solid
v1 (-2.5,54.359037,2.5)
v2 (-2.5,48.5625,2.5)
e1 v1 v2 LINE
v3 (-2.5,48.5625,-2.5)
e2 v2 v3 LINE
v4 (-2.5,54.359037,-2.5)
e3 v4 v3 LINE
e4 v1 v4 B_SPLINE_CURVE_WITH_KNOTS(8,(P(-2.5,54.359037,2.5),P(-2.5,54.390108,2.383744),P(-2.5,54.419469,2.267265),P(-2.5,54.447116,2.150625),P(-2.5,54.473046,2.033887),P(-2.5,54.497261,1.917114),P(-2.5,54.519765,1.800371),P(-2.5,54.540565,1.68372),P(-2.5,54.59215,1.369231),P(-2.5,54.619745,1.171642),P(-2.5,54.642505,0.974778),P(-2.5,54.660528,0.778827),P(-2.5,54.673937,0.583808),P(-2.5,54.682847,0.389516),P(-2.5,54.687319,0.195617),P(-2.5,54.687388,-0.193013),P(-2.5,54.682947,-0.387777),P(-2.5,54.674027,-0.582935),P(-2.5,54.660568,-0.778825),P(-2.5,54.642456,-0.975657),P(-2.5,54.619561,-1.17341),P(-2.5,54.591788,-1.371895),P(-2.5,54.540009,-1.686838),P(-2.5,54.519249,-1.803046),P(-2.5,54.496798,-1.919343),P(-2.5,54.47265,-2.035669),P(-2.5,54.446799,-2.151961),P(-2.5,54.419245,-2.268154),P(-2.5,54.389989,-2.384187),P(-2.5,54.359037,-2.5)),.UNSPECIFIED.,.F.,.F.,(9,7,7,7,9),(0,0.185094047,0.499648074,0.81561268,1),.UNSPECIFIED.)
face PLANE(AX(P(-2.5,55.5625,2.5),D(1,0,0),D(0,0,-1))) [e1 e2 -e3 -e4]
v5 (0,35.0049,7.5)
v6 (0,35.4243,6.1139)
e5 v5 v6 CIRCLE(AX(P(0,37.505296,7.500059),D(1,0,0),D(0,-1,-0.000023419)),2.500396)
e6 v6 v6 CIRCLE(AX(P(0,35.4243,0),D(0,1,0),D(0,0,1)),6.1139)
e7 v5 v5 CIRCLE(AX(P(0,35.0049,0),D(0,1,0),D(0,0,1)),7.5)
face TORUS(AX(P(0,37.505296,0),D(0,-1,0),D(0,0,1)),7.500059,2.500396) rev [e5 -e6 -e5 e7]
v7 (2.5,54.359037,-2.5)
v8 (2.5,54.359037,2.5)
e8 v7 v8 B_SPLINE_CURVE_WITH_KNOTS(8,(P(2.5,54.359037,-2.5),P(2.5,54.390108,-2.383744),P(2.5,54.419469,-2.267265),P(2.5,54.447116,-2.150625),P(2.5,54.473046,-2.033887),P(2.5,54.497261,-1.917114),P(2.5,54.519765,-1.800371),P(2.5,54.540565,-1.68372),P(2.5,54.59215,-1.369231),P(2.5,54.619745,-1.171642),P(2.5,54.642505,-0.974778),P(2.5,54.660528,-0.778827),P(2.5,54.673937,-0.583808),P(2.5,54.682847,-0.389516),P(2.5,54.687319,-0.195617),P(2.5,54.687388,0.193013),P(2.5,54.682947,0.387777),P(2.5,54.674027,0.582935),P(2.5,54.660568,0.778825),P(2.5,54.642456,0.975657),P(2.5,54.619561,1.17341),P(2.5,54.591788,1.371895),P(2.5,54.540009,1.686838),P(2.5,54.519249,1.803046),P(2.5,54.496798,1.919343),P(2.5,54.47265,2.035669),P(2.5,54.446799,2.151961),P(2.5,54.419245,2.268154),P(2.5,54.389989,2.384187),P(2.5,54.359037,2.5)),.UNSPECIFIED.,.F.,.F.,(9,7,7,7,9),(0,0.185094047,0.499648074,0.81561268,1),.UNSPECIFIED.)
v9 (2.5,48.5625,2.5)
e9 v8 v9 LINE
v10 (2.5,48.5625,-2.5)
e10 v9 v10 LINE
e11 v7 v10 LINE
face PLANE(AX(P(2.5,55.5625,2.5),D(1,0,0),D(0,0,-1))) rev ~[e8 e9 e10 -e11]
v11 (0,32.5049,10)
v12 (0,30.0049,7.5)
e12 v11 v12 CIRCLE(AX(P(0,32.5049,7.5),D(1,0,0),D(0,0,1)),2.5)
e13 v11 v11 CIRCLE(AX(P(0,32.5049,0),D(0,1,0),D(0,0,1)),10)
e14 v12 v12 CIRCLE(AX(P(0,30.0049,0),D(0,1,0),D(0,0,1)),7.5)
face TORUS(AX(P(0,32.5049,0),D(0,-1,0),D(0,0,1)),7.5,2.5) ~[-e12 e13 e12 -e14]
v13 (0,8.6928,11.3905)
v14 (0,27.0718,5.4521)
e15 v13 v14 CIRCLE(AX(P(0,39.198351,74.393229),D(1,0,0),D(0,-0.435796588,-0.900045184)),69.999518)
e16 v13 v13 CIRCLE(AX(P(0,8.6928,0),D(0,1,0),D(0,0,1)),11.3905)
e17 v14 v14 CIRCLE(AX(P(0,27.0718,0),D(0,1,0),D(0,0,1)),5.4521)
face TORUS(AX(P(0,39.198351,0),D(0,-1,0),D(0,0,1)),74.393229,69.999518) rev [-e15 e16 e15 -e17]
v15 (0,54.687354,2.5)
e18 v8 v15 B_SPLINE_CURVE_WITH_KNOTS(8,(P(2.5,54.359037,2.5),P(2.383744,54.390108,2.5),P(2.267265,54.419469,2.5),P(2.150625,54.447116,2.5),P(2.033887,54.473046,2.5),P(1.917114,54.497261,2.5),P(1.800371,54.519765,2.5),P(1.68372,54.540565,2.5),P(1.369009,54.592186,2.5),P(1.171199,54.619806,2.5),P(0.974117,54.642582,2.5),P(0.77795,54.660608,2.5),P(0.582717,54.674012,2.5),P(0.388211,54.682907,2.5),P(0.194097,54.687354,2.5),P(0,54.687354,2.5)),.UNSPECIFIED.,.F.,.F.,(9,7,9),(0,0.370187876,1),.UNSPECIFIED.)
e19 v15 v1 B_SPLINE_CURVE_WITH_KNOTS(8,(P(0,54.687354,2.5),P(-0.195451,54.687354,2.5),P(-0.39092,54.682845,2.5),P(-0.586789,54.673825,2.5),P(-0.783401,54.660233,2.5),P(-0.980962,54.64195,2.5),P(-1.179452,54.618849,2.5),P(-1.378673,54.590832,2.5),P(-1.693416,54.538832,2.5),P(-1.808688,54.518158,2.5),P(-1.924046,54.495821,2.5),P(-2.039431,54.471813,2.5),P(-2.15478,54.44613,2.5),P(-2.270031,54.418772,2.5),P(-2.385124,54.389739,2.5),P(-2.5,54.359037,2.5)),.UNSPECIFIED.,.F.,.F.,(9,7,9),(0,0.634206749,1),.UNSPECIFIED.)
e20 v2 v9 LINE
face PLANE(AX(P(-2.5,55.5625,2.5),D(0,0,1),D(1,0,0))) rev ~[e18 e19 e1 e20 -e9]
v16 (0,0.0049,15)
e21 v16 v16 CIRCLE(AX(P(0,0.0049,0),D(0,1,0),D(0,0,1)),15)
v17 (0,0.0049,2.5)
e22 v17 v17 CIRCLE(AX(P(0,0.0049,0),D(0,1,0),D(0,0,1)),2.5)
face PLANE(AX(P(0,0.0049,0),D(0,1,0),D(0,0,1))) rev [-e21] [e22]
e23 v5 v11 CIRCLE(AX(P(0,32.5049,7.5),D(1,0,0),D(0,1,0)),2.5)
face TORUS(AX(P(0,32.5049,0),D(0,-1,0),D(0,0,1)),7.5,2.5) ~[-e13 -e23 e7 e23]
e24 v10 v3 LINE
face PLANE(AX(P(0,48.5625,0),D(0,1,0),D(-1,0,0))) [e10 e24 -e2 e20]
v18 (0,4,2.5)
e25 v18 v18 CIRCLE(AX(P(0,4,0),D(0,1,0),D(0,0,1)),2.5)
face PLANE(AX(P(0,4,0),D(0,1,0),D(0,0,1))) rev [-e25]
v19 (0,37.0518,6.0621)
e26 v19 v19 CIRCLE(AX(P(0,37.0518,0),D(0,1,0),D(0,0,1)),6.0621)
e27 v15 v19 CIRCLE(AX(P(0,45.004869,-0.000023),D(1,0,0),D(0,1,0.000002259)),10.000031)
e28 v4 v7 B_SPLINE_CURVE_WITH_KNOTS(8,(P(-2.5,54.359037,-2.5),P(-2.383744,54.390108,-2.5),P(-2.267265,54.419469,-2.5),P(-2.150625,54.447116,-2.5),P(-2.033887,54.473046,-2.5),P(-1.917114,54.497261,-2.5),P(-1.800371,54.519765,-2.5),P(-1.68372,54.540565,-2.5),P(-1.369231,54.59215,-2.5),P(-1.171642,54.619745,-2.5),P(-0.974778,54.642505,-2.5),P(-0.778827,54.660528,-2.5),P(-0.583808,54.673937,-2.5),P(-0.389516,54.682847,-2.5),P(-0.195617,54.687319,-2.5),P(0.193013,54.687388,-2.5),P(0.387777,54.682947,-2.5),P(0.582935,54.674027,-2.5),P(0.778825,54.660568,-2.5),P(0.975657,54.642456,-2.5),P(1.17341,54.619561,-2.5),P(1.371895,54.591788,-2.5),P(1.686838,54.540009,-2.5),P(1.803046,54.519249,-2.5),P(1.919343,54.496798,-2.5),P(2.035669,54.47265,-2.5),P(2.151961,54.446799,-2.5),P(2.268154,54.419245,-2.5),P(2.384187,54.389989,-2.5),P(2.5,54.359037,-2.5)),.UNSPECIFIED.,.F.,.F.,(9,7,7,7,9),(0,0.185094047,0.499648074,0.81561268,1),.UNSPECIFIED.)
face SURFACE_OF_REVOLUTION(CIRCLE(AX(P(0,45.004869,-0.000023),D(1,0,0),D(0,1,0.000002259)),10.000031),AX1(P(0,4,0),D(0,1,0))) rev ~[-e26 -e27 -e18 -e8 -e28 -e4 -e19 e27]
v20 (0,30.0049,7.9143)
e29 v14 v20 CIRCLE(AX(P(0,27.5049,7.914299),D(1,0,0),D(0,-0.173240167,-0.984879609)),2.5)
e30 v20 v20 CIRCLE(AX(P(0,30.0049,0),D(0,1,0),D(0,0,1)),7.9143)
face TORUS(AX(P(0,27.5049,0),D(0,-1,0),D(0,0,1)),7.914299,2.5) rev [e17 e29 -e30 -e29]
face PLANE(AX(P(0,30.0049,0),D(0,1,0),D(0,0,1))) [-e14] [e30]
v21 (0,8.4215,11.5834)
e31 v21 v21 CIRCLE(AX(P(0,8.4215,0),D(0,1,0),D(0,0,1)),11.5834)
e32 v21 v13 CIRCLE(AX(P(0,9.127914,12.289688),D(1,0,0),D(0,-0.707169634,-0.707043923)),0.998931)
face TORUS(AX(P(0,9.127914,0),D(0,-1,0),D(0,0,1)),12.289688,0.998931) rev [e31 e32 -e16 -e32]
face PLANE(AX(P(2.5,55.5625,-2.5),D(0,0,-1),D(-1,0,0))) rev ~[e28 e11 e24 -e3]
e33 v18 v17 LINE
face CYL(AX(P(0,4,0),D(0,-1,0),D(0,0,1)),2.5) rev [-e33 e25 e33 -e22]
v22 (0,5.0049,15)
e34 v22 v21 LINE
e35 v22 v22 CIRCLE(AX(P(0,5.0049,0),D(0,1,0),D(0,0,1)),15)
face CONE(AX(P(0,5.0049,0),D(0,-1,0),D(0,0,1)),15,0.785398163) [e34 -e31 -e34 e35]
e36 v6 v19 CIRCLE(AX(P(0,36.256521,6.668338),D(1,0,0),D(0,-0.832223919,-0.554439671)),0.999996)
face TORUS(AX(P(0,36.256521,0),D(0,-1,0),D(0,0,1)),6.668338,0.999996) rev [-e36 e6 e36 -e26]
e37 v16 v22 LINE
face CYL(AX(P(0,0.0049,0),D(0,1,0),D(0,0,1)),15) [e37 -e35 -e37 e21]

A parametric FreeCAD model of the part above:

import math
import FreeCAD as App
import Part
import Sketcher
Q = App.Units.Quantity

doc = App.newDocument("Part")
body = doc.addObject("PartDesign::Body", "Body")

# Sketch on YZ plane
sketch1 = body.newObject("Sketcher::SketchObject", "Sketch")
sketch1.AttachmentSupport = (doc.getObject("YZ_Plane"), [""])
sketch1.MapMode = "FlatFace"
sketch1.addGeometry([
    Part.LineSegment(App.Vector(4, 2.5, 0), App.Vector(4, 0, 0)),  # 0
    Part.LineSegment(App.Vector(4, 0, 0), App.Vector(55, 0, 0)),  # 1
    Part.ArcOfCircle(Part.Circle(App.Vector(45, 0, 0), App.Vector(0, 0, 1), 10), math.radians(0), math.radians(143)),  # 2
    Part.ArcOfCircle(Part.Circle(App.Vector(36.26, 6.67, 0), App.Vector(0, 0, 1), 1), math.radians(-146), math.radians(-37)),  # 3
    Part.ArcOfCircle(Part.Circle(App.Vector(37.5, 7.5, 0), App.Vector(0, 0, 1), 2.5), math.radians(180), math.radians(214)),  # 4
    Part.ArcOfCircle(Part.Circle(App.Vector(32.5, 7.5, 0), App.Vector(0, 0, 1), 2.5), math.radians(0), math.radians(180)),  # 5
    Part.LineSegment(App.Vector(30, 7.5, 0), App.Vector(30, 7.91, 0)),  # 6
    Part.ArcOfCircle(Part.Circle(App.Vector(27.5, 7.91, 0), App.Vector(0, 0, 1), 2.5), math.radians(-100), math.radians(0)),  # 7
    Part.ArcOfCircle(Part.Circle(App.Vector(39.2, 74.39, 0), App.Vector(0, 0, 1), 70), math.radians(-115.84), math.radians(-99.98)),  # 8
    Part.ArcOfCircle(Part.Circle(App.Vector(9.13, 12.29, 0), App.Vector(0, 0, 1), 1), math.radians(-135.01), math.radians(-115.82)),  # 9
    Part.LineSegment(App.Vector(8.42, 11.58, 0), App.Vector(5, 15, 0)),  # 10
    Part.LineSegment(App.Vector(5, 15, 0), App.Vector(0, 15, 0)),  # 11
    Part.LineSegment(App.Vector(0, 15, 0), App.Vector(0, 2.5, 0)),  # 12
    Part.LineSegment(App.Vector(0, 2.5, 0), App.Vector(4, 2.5, 0)),  # 13
], False)
sketch1.addConstraint([
    Sketcher.Constraint("Coincident", 0, 2, 1, 1),
    Sketcher.Constraint("Coincident", 1, 2, 2, 1),
    Sketcher.Constraint("Tangent", 2, 2, 3, 2),
    Sketcher.Constraint("Tangent", 3, 1, 4, 2),
    Sketcher.Constraint("Tangent", 4, 1, 5, 1),
    Sketcher.Constraint("Tangent", 5, 2, 6, 1),
    Sketcher.Constraint("Tangent", 6, 2, 7, 2),
    Sketcher.Constraint("Tangent", 7, 1, 8, 2),
    Sketcher.Constraint("Tangent", 8, 1, 9, 2),
    Sketcher.Constraint("Tangent", 9, 1, 10, 1),
    Sketcher.Constraint("Coincident", 10, 2, 11, 1),
    Sketcher.Constraint("Coincident", 11, 2, 12, 1),
    Sketcher.Constraint("Coincident", 12, 2, 13, 1),
    Sketcher.Constraint("Coincident", 13, 2, 0, 1),
    Sketcher.Constraint("Vertical", 0),
    Sketcher.Constraint("Horizontal", 1),
    Sketcher.Constraint("Vertical", 6),
    Sketcher.Constraint("Horizontal", 11),
    Sketcher.Constraint("Vertical", 12),
    Sketcher.Constraint("Horizontal", 13),
    Sketcher.Constraint("Equal", 4, 5),
    Sketcher.Constraint("Equal", 5, 7),
    Sketcher.Constraint("PointOnObject", 2, 3, -1),
    Sketcher.Constraint("PointOnObject", 0, 2, -1),
    Sketcher.Constraint("Horizontal", 4, 3, 5, 3),
    Sketcher.Constraint("Radius", 3, Q("1 mm")),
    Sketcher.Constraint("Radius", 8, Q("70 mm")),
    Sketcher.Constraint("Radius", 4, Q("2.5 mm")),
    Sketcher.Constraint("DistanceX", 11, 2, 11, 1, Q("5 mm")),
    Sketcher.Constraint("Angle", 10, Q("135 deg")),
    Sketcher.Constraint("DistanceY", 0, 2, 0, 1, Q("2.5 mm")),
    Sketcher.Constraint("DistanceX", -1, 1, 0, 2, Q("4 mm")),
    Sketcher.Constraint("DistanceY", -1, 1, 10, 2, Q("15 mm")),
    Sketcher.Constraint("Radius", 2, Q("10 mm")),
    Sketcher.Constraint("Radius", 9, Q("0.999 mm")),
    Sketcher.Constraint("DistanceY", -1, 1, 4, 3, Q("7.5 mm")),
    Sketcher.Constraint("DistanceX", 4, 3, 2, 3, Q("7.5 mm")),
    Sketcher.Constraint("DistanceX", 10, 2, 7, 3, Q("22.5 mm")),
    Sketcher.Constraint("DistanceX", 1, 1, 1, 2, Q("51.005 mm")),
    Sketcher.Constraint("DistanceY", 6, 1, 6, 2, Q("0.4143 mm")),
    Sketcher.Constraint("DistanceX", -1, 1, 9, 3, Q("9.128 mm")),
])
revolution = body.newObject("PartDesign::Revolution", "Revolution")
revolution.Profile = sketch1
revolution.ReferenceAxis = (sketch1, ["H_Axis"])
revolution.Angle = 360

# Sketch on XZ plane
sketch2 = body.newObject("Sketcher::SketchObject", "Sketch001")
sketch2.AttachmentSupport = (doc.getObject("XZ_Plane"), [""])
sketch2.MapMode = "FlatFace"
sketch2.AttachmentOffset = App.Placement(App.Vector(0, 0, -55.5625), App.Rotation())
sketch2.addGeometry([
    Part.LineSegment(App.Vector(-2, -2, 0), App.Vector(-2, 2, 0)),
    Part.LineSegment(App.Vector(-2, 2, 0), App.Vector(2, 2, 0)),
    Part.LineSegment(App.Vector(2, 2, 0), App.Vector(2, -2, 0)),
    Part.LineSegment(App.Vector(2, -2, 0), App.Vector(-2, -2, 0)),
], False)
sketch2.addConstraint([
    Sketcher.Constraint("Coincident", 0, 2, 1, 1),
    Sketcher.Constraint("Coincident", 1, 2, 2, 1),
    Sketcher.Constraint("Coincident", 2, 2, 3, 1),
    Sketcher.Constraint("Coincident", 3, 2, 0, 1),
    Sketcher.Constraint("Vertical", 0),
    Sketcher.Constraint("Horizontal", 1),
    Sketcher.Constraint("Vertical", 2),
    Sketcher.Constraint("Horizontal", 3),
    Sketcher.Constraint("Symmetric", 0, 2, 2, 2, -1, 1),
    Sketcher.Constraint("Equal", 3, 0),
    Sketcher.Constraint("DistanceX", 1, 1, 1, 2, Q("5 mm")),
])
pocket1 = body.newObject("PartDesign::Pocket", "Pocket")
pocket1.Profile = sketch2
pocket1.Length = 7
pocket1.Reversed = True

doc.recompute()
